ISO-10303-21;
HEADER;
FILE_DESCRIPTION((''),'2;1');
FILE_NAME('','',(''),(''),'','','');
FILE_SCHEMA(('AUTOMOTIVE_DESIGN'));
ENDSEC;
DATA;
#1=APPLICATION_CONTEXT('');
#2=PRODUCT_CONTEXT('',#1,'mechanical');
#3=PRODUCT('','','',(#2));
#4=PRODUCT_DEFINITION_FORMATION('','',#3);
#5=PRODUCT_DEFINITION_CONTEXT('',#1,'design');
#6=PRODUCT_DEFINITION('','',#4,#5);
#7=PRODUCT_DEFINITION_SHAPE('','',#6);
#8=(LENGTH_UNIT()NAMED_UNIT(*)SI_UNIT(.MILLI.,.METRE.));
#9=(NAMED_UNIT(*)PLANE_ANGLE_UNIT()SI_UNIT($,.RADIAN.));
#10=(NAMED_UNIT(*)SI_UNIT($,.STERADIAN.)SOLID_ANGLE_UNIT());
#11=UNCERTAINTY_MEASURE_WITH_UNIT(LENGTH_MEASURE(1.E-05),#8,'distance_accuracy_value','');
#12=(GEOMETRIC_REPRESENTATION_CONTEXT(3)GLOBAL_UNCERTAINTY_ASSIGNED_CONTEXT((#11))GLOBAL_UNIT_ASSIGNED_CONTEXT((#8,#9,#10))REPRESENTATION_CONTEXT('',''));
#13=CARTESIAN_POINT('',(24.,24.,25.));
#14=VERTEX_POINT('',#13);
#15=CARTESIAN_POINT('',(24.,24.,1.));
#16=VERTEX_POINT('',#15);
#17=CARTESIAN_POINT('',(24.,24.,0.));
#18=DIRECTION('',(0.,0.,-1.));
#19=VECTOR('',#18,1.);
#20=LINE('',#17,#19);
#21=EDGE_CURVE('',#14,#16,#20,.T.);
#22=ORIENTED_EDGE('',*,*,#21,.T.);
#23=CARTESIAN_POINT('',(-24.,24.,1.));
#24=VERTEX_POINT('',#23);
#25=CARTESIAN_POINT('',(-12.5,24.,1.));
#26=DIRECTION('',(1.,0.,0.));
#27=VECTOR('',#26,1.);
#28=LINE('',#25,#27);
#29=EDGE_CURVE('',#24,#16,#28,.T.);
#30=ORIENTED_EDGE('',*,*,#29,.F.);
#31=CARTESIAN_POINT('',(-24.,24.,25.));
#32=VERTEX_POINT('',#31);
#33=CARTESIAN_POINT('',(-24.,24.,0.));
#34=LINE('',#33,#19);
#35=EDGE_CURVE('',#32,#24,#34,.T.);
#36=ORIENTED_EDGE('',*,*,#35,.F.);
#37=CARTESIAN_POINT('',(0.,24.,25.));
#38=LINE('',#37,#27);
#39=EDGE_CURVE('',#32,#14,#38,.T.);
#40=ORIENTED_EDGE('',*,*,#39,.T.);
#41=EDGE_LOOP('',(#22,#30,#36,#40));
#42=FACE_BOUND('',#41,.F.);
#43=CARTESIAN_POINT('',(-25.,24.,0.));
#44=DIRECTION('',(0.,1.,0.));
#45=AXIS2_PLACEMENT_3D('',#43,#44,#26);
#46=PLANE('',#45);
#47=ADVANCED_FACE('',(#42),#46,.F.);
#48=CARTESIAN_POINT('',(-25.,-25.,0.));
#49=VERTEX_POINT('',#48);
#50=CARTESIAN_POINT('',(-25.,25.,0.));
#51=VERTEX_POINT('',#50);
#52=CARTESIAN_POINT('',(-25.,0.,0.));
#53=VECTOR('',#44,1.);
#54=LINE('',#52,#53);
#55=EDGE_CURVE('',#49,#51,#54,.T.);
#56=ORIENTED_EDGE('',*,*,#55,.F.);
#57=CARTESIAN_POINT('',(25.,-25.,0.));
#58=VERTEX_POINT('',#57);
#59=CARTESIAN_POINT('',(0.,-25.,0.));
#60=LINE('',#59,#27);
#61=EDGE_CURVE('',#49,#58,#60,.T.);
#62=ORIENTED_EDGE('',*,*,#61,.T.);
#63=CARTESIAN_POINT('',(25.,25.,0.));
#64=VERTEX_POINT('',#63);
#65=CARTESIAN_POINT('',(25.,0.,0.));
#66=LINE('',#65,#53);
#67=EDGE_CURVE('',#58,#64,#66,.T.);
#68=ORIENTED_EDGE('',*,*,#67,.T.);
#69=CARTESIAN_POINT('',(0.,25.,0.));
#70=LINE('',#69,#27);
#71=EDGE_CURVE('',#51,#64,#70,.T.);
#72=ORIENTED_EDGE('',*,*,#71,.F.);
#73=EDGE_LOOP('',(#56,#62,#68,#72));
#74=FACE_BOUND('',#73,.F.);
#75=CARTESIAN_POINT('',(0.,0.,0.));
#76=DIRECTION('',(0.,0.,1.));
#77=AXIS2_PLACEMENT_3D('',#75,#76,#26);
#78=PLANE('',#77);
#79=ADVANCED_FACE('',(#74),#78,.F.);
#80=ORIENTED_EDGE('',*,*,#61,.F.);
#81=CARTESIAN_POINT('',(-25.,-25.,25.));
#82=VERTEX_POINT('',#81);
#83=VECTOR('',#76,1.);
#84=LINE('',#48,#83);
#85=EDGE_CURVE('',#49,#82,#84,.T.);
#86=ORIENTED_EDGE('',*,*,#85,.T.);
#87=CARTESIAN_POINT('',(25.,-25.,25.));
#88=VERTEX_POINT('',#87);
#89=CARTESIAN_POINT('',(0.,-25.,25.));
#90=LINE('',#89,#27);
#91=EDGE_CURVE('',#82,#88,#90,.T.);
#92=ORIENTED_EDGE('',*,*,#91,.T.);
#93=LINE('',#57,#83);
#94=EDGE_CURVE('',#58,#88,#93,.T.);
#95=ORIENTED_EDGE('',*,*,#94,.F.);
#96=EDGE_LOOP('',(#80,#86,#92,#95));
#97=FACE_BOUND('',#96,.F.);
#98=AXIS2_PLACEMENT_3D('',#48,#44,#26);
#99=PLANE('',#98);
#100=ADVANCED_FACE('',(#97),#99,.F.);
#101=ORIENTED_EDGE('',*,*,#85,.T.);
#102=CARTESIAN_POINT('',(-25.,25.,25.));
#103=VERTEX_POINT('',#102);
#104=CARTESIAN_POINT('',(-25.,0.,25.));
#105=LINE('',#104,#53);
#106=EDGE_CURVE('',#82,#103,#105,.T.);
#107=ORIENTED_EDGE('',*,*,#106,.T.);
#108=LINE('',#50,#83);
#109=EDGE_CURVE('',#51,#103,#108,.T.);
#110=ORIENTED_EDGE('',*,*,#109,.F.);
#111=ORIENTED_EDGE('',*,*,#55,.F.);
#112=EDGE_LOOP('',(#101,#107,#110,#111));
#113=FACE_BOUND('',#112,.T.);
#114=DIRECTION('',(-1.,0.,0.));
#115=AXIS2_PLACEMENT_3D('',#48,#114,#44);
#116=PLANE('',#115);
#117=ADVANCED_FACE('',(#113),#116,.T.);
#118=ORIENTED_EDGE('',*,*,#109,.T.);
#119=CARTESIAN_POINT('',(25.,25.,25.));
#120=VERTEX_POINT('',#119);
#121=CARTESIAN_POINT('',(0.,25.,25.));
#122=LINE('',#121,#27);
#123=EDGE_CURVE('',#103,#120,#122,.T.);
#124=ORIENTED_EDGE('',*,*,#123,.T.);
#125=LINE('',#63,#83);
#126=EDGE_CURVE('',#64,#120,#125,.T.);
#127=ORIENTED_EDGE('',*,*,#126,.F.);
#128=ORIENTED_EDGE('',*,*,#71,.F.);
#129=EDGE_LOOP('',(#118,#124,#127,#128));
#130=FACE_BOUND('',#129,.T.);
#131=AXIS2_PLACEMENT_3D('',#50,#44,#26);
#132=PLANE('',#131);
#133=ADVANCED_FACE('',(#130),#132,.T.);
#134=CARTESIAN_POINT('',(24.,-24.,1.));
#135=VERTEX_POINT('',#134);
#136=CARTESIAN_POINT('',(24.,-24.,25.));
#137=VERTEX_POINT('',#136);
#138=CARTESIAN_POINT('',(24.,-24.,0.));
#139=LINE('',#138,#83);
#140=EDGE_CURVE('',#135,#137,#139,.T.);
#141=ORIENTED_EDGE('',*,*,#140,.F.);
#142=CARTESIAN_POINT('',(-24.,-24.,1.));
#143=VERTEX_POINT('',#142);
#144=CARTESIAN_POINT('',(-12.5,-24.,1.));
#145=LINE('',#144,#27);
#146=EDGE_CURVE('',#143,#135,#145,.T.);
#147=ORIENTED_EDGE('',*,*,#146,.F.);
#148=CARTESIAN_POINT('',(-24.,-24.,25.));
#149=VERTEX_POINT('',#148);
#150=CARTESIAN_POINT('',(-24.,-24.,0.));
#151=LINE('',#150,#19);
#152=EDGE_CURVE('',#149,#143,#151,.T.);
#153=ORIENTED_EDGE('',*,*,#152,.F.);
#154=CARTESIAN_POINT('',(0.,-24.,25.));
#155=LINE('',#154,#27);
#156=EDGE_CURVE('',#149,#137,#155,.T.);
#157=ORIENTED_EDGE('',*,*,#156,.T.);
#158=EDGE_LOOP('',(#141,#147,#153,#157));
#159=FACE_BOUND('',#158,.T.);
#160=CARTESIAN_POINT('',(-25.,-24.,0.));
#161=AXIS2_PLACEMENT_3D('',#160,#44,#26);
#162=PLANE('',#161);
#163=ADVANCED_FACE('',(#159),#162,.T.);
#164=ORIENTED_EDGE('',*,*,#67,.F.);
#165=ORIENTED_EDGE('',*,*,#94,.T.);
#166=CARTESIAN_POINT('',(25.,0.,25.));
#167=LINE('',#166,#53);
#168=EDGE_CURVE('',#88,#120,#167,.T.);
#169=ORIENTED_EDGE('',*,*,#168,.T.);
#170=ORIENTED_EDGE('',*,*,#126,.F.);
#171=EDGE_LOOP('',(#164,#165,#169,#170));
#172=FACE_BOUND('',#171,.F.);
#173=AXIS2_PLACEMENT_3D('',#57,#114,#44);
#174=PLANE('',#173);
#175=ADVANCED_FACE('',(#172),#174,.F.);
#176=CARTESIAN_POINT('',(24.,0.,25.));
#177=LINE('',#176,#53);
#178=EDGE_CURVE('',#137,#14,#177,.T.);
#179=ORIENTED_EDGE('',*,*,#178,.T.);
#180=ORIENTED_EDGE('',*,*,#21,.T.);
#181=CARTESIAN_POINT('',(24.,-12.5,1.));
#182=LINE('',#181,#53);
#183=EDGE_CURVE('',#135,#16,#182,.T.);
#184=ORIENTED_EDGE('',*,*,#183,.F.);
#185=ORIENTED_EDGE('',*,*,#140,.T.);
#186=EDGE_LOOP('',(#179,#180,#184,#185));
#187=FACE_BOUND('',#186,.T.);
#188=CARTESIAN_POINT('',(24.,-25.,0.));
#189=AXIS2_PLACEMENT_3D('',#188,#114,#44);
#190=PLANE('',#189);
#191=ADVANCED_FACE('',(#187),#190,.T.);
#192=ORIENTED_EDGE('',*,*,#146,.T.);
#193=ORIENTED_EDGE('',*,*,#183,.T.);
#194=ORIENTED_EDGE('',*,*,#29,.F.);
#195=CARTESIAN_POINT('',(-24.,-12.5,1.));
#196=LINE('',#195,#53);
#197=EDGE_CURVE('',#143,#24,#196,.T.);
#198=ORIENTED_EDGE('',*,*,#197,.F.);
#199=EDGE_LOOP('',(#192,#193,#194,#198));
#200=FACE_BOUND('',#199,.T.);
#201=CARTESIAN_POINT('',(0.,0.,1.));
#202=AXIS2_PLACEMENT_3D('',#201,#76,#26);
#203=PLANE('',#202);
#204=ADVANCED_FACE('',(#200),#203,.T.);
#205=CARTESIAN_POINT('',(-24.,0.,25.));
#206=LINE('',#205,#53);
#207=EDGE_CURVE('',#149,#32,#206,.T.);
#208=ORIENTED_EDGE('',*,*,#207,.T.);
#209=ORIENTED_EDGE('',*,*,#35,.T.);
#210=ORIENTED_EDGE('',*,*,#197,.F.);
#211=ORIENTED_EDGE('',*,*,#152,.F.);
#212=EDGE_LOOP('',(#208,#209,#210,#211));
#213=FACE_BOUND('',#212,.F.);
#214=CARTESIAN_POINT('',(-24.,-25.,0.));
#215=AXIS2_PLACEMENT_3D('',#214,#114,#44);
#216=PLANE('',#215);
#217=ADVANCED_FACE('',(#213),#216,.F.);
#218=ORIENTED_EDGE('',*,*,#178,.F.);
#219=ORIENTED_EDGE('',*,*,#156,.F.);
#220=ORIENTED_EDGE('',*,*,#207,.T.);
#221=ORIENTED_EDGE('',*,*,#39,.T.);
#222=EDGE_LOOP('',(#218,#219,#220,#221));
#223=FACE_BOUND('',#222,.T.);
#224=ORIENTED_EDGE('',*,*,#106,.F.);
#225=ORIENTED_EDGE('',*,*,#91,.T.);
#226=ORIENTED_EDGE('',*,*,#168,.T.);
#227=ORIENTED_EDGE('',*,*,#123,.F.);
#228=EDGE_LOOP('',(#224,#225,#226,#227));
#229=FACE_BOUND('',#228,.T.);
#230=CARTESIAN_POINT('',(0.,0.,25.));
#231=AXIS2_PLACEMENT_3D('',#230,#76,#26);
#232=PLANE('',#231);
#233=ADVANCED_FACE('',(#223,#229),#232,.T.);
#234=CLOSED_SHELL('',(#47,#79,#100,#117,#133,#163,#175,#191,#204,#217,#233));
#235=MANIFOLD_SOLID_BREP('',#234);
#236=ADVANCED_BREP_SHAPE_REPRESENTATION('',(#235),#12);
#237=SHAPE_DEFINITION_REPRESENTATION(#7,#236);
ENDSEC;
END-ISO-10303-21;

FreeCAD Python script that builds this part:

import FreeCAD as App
import Part
import Sketcher
from FreeCAD import Vector
Q = App.Units.Quantity


def faces_at(feature, points):
    """Names of the faces that lie closest to the given points."""
    faces = feature.Shape.Faces
    near = lambda p: min(range(len(faces)), key=lambda i: faces[i].distToShape(Part.Vertex(*p))[0])
    return sorted({f"Face{near(p) + 1}" for p in points})


def add_polygon(sketch, points):
    """Adds a closed chain of lines whose ends are joined by coincident constraints."""
    first, n = sketch.GeometryCount, len(points)
    for a, b in zip(points, points[1:] + points[:1]):
        sketch.addGeometry(Part.LineSegment(App.Vector(*a, 0), App.Vector(*b, 0)), False)
    for i in range(n):
        sketch.addConstraint(Sketcher.Constraint("Coincident", first + i, 2, first + (i + 1) % n, 1))

doc = App.newDocument("Part")
body = doc.addObject("PartDesign::Body", "Body")

sketch1 = body.newObject("Sketcher::SketchObject", "Sketch")
sketch1.AttachmentSupport = (doc.getObject("XY_Plane"), [""])
sketch1.MapMode = "FlatFace"
add_polygon(sketch1, [(-25, 25), (-25, -25), (25, -25), (25, 25)])
sketch1.addConstraint(Sketcher.Constraint("Vertical", 0))
sketch1.addConstraint(Sketcher.Constraint("Horizontal", 1))
sketch1.addConstraint(Sketcher.Constraint("Vertical", 2))
sketch1.addConstraint(Sketcher.Constraint("Horizontal", 3))
sketch1.addConstraint(Sketcher.Constraint("Symmetric", 0, 2, 2, 2, -1, 1))
sketch1.addConstraint(Sketcher.Constraint("Equal", 3, 0))
sketch1.addConstraint(Sketcher.Constraint("DistanceX", 1, 1, 1, 2, Q("50 mm")))
pad1 = body.newObject("PartDesign::Pad", "Pad")
pad1.Profile = sketch1
pad1.Length = 25
doc.recompute()

thickness = body.newObject("PartDesign::Thickness", "Thickness")
thickness.Base = (pad1, faces_at(pad1, [(0, 0, 25)]))
thickness.Value = 1
thickness.Reversed = True
thickness.Join = "Arc"

doc.recompute()
